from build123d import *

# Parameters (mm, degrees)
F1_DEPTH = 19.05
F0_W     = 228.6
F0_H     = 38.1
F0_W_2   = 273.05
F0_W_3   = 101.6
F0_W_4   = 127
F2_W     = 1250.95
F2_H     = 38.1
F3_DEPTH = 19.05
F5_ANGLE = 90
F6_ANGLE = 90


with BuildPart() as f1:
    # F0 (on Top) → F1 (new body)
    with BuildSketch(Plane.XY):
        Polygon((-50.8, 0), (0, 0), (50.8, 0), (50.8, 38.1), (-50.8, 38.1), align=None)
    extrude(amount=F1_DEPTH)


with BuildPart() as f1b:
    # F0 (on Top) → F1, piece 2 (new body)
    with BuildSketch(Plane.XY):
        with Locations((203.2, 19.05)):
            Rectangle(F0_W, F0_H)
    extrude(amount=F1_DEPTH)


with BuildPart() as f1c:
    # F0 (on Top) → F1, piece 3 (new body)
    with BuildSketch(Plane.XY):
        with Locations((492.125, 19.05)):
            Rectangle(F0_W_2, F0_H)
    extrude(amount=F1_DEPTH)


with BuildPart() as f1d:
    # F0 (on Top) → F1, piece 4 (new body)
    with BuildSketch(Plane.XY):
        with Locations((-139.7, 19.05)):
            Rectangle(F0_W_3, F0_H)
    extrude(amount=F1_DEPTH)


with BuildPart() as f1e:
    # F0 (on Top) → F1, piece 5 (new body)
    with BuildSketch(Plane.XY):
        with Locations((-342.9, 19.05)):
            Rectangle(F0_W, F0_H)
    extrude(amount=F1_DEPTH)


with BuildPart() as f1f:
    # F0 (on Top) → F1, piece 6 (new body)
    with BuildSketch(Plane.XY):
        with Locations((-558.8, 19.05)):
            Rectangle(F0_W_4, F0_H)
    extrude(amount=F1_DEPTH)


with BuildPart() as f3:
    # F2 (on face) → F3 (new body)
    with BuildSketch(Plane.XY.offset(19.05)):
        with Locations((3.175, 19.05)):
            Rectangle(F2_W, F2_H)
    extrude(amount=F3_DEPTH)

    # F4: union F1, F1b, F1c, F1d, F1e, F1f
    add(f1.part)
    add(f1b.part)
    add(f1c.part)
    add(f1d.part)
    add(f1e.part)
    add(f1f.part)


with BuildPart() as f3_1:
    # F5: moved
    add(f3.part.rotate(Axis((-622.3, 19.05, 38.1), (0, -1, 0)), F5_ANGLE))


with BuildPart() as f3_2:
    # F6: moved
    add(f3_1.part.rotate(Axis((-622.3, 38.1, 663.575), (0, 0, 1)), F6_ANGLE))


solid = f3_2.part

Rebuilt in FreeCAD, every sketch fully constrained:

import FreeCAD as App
import Part
import Sketcher

V = App.Vector
Q = App.Units.Quantity

doc = App.newDocument("Part")
params = doc.addObject("Spreadsheet::Sheet", "Params")
for row, (alias, value) in enumerate([
    ("sketch1_width", "4 in"),
    ("sketch1_height", "1.5 in"),
    ("pad1_length", "0.75 in"),
    ("sketch2_width", "9 in"),
    ("sketch2_height", "1.5 in"),
    ("pad2_length", "0.75 in"),
    ("sketch3_height", "1.5 in"),
    ("sketch3_width", "10.75 in"),
    ("pad3_length", "0.75 in"),
    ("sketch4_width", "4 in"),
    ("sketch4_height", "1.5 in"),
    ("pad4_length", "0.75 in"),
    ("sketch5_width", "9 in"),
    ("sketch5_height", "1.5 in"),
    ("pad5_length", "0.75 in"),
    ("sketch6_width", "5 in"),
    ("sketch6_height", "1.5 in"),
    ("pad6_length", "0.75 in"),
    ("sketch7_height", "1.5 in"),
    ("sketch7_width", "49.25 in"),
    ("pad7_length", "0.75 in"),
], start=1):
    params.set(f"A{row}", alias)
    params.set(f"B{row}", "=" + value)
    params.setAlias(f"B{row}", alias)

body = doc.addObject("PartDesign::Body", "Body")

sketch1 = body.newObject("Sketcher::SketchObject", "Sketch")
sketch1.AttachmentSupport = (doc.getObject("XY_Plane"), [""])
sketch1.MapMode = "FlatFace"
sketch1.addGeometry(Part.LineSegment(V(-51, 0, 0), V(51, 0, 0)), False)
sketch1.addGeometry(Part.LineSegment(V(51, 0, 0), V(51, 38, 0)), False)
sketch1.addGeometry(Part.LineSegment(V(51, 38, 0), V(-51, 38, 0)), False)
sketch1.addGeometry(Part.LineSegment(V(-51, 38, 0), V(-51, 0, 0)), False)
sketch1.addConstraint(Sketcher.Constraint("Coincident", 0, 2, 1, 1))
sketch1.addConstraint(Sketcher.Constraint("Coincident", 1, 2, 2, 1))
sketch1.addConstraint(Sketcher.Constraint("Coincident", 2, 2, 3, 1))
sketch1.addConstraint(Sketcher.Constraint("Coincident", 3, 2, 0, 1))
sketch1.addConstraint(Sketcher.Constraint("Horizontal", 0))
sketch1.addConstraint(Sketcher.Constraint("Vertical", 1))
sketch1.addConstraint(Sketcher.Constraint("Horizontal", 2))
sketch1.addConstraint(Sketcher.Constraint("Vertical", 3))
sketch1.addConstraint(Sketcher.Constraint("Symmetric", 0, 2, 3, 2, -1, 1))
sketch1.addConstraint(Sketcher.Constraint("DistanceX", 0, 1, 0, 2, Q("4 in")))
sketch1.addConstraint(Sketcher.Constraint("DistanceY", 1, 1, 1, 2, Q("1.5 in")))
sketch1.setExpression("Constraints[9]", "Params.sketch1_width")
sketch1.setExpression("Constraints[10]", "Params.sketch1_height")
pad1 = body.newObject("PartDesign::Pad", "Pad")
pad1.Profile = sketch1
pad1.setExpression("Length", "Params.pad1_length")
body2 = doc.addObject("PartDesign::Body", "Body001")

sketch2 = body2.newObject("Sketcher::SketchObject", "Sketch001")
sketch2.AttachmentSupport = (doc.getObject("XY_Plane001"), [""])
sketch2.MapMode = "FlatFace"
sketch2.addGeometry(Part.LineSegment(V(89, 38, 0), V(89, 0, 0)), False)
sketch2.addGeometry(Part.LineSegment(V(89, 0, 0), V(318, 0, 0)), False)
sketch2.addGeometry(Part.LineSegment(V(318, 0, 0), V(318, 38, 0)), False)
sketch2.addGeometry(Part.LineSegment(V(318, 38, 0), V(89, 38, 0)), False)
sketch2.addConstraint(Sketcher.Constraint("Coincident", 0, 2, 1, 1))
sketch2.addConstraint(Sketcher.Constraint("Coincident", 1, 2, 2, 1))
sketch2.addConstraint(Sketcher.Constraint("Coincident", 2, 2, 3, 1))
sketch2.addConstraint(Sketcher.Constraint("Coincident", 3, 2, 0, 1))
sketch2.addConstraint(Sketcher.Constraint("Vertical", 0))
sketch2.addConstraint(Sketcher.Constraint("Horizontal", 1))
sketch2.addConstraint(Sketcher.Constraint("Vertical", 2))
sketch2.addConstraint(Sketcher.Constraint("Horizontal", 3))
sketch2.addConstraint(Sketcher.Constraint("PointOnObject", 0, 2, -1))
sketch2.addConstraint(Sketcher.Constraint("DistanceX", 1, 1, 1, 2, Q("9 in")))
sketch2.addConstraint(Sketcher.Constraint("DistanceY", 0, 2, 0, 1, Q("1.5 in")))
sketch2.addConstraint(Sketcher.Constraint("DistanceX", -1, 1, 0, 2, Q("3.5 in")))
sketch2.setExpression("Constraints[9]", "Params.sketch2_width")
sketch2.setExpression("Constraints[10]", "Params.sketch2_height")
pad2 = body2.newObject("PartDesign::Pad", "Pad001")
pad2.Profile = sketch2
pad2.setExpression("Length", "Params.pad2_length")
body3 = doc.addObject("PartDesign::Body", "Body002")

sketch3 = body3.newObject("Sketcher::SketchObject", "Sketch002")
sketch3.AttachmentSupport = (doc.getObject("XY_Plane002"), [""])
sketch3.MapMode = "FlatFace"
sketch3.addGeometry(Part.LineSegment(V(356, 38, 0), V(356, 0, 0)), False)
sketch3.addGeometry(Part.LineSegment(V(356, 0, 0), V(629, 0, 0)), False)
sketch3.addGeometry(Part.LineSegment(V(629, 0, 0), V(629, 38, 0)), False)
sketch3.addGeometry(Part.LineSegment(V(629, 38, 0), V(356, 38, 0)), False)
sketch3.addConstraint(Sketcher.Constraint("Coincident", 0, 2, 1, 1))
sketch3.addConstraint(Sketcher.Constraint("Coincident", 1, 2, 2, 1))
sketch3.addConstraint(Sketcher.Constraint("Coincident", 2, 2, 3, 1))
sketch3.addConstraint(Sketcher.Constraint("Coincident", 3, 2, 0, 1))
sketch3.addConstraint(Sketcher.Constraint("Vertical", 0))
sketch3.addConstraint(Sketcher.Constraint("Horizontal", 1))
sketch3.addConstraint(Sketcher.Constraint("Vertical", 2))
sketch3.addConstraint(Sketcher.Constraint("Horizontal", 3))
sketch3.addConstraint(Sketcher.Constraint("PointOnObject", 0, 2, -1))
sketch3.addConstraint(Sketcher.Constraint("DistanceY", 0, 2, 0, 1, Q("1.5 in")))
sketch3.addConstraint(Sketcher.Constraint("DistanceX", -1, 1, 0, 2, Q("14 in")))
sketch3.addConstraint(Sketcher.Constraint("DistanceX", 1, 1, 1, 2, Q("10.75 in")))
sketch3.setExpression("Constraints[9]", "Params.sketch3_height")
sketch3.setExpression("Constraints[11]", "Params.sketch3_width")
pad3 = body3.newObject("PartDesign::Pad", "Pad002")
pad3.Profile = sketch3
pad3.setExpression("Length", "Params.pad3_length")
body4 = doc.addObject("PartDesign::Body", "Body003")

sketch4 = body4.newObject("Sketcher::SketchObject", "Sketch003")
sketch4.AttachmentSupport = (doc.getObject("XY_Plane003"), [""])
sketch4.MapMode = "FlatFace"
sketch4.addGeometry(Part.LineSegment(V(-190, 38, 0), V(-190, 0, 0)), False)
sketch4.addGeometry(Part.LineSegment(V(-190, 0, 0), V(-89, 0, 0)), False)
sketch4.addGeometry(Part.LineSegment(V(-89, 0, 0), V(-89, 38, 0)), False)
sketch4.addGeometry(Part.LineSegment(V(-89, 38, 0), V(-190, 38, 0)), False)
sketch4.addConstraint(Sketcher.Constraint("Coincident", 0, 2, 1, 1))
sketch4.addConstraint(Sketcher.Constraint("Coincident", 1, 2, 2, 1))
sketch4.addConstraint(Sketcher.Constraint("Coincident", 2, 2, 3, 1))
sketch4.addConstraint(Sketcher.Constraint("Coincident", 3, 2, 0, 1))
sketch4.addConstraint(Sketcher.Constraint("Vertical", 0))
sketch4.addConstraint(Sketcher.Constraint("Horizontal", 1))
sketch4.addConstraint(Sketcher.Constraint("Vertical", 2))
sketch4.addConstraint(Sketcher.Constraint("Horizontal", 3))
sketch4.addConstraint(Sketcher.Constraint("PointOnObject", 0, 2, -1))
sketch4.addConstraint(Sketcher.Constraint("DistanceX", 1, 1, 1, 2, Q("4 in")))
sketch4.addConstraint(Sketcher.Constraint("DistanceY", 0, 2, 0, 1, Q("1.5 in")))
sketch4.addConstraint(Sketcher.Constraint("DistanceX", 0, 2, -1, 1, Q("7.5 in")))
sketch4.setExpression("Constraints[9]", "Params.sketch4_width")
sketch4.setExpression("Constraints[10]", "Params.sketch4_height")
pad4 = body4.newObject("PartDesign::Pad", "Pad003")
pad4.Profile = sketch4
pad4.setExpression("Length", "Params.pad4_length")
body5 = doc.addObject("PartDesign::Body", "Body004")

sketch5 = body5.newObject("Sketcher::SketchObject", "Sketch004")
sketch5.AttachmentSupport = (doc.getObject("XY_Plane004"), [""])
sketch5.MapMode = "FlatFace"
sketch5.addGeometry(Part.LineSegment(V(-457, 38, 0), V(-457, 0, 0)), False)
sketch5.addGeometry(Part.LineSegment(V(-457, 0, 0), V(-229, 0, 0)), False)
sketch5.addGeometry(Part.LineSegment(V(-229, 0, 0), V(-229, 38, 0)), False)
sketch5.addGeometry(Part.LineSegment(V(-229, 38, 0), V(-457, 38, 0)), False)
sketch5.addConstraint(Sketcher.Constraint("Coincident", 0, 2, 1, 1))
sketch5.addConstraint(Sketcher.Constraint("Coincident", 1, 2, 2, 1))
sketch5.addConstraint(Sketcher.Constraint("Coincident", 2, 2, 3, 1))
sketch5.addConstraint(Sketcher.Constraint("Coincident", 3, 2, 0, 1))
sketch5.addConstraint(Sketcher.Constraint("Vertical", 0))
sketch5.addConstraint(Sketcher.Constraint("Horizontal", 1))
sketch5.addConstraint(Sketcher.Constraint("Vertical", 2))
sketch5.addConstraint(Sketcher.Constraint("Horizontal", 3))
sketch5.addConstraint(Sketcher.Constraint("PointOnObject", 0, 2, -1))
sketch5.addConstraint(Sketcher.Constraint("DistanceX", 1, 1, 1, 2, Q("9 in")))
sketch5.addConstraint(Sketcher.Constraint("DistanceY", 0, 2, 0, 1, Q("1.5 in")))
sketch5.addConstraint(Sketcher.Constraint("DistanceX", 0, 2, -1, 1, Q("18 in")))
sketch5.setExpression("Constraints[9]", "Params.sketch5_width")
sketch5.setExpression("Constraints[10]", "Params.sketch5_height")
pad5 = body5.newObject("PartDesign::Pad", "Pad004")
pad5.Profile = sketch5
pad5.setExpression("Length", "Params.pad5_length")
body6 = doc.addObject("PartDesign::Body", "Body005")

sketch6 = body6.newObject("Sketcher::SketchObject", "Sketch005")
sketch6.AttachmentSupport = (doc.getObject("XY_Plane005"), [""])
sketch6.MapMode = "FlatFace"
sketch6.addGeometry(Part.LineSegment(V(-622, 38, 0), V(-622, 0, 0)), False)
sketch6.addGeometry(Part.LineSegment(V(-622, 0, 0), V(-495, 0, 0)), False)
sketch6.addGeometry(Part.LineSegment(V(-495, 0, 0), V(-495, 38, 0)), False)
sketch6.addGeometry(Part.LineSegment(V(-495, 38, 0), V(-622, 38, 0)), False)
sketch6.addConstraint(Sketcher.Constraint("Coincident", 0, 2, 1, 1))
sketch6.addConstraint(Sketcher.Constraint("Coincident", 1, 2, 2, 1))
sketch6.addConstraint(Sketcher.Constraint("Coincident", 2, 2, 3, 1))
sketch6.addConstraint(Sketcher.Constraint("Coincident", 3, 2, 0, 1))
sketch6.addConstraint(Sketcher.Constraint("Vertical", 0))
sketch6.addConstraint(Sketcher.Constraint("Horizontal", 1))
sketch6.addConstraint(Sketcher.Constraint("Vertical", 2))
sketch6.addConstraint(Sketcher.Constraint("Horizontal", 3))
sketch6.addConstraint(Sketcher.Constraint("PointOnObject", 0, 2, -1))
sketch6.addConstraint(Sketcher.Constraint("DistanceX", 1, 1, 1, 2, Q("5 in")))
sketch6.addConstraint(Sketcher.Constraint("DistanceY", 0, 2, 0, 1, Q("1.5 in")))
sketch6.addConstraint(Sketcher.Constraint("DistanceX", 0, 2, -1, 1, Q("24.5 in")))
sketch6.setExpression("Constraints[9]", "Params.sketch6_width")
sketch6.setExpression("Constraints[10]", "Params.sketch6_height")
pad6 = body6.newObject("PartDesign::Pad", "Pad005")
pad6.Profile = sketch6
pad6.setExpression("Length", "Params.pad6_length")
body7 = doc.addObject("PartDesign::Body", "Body006")

sketch7 = body7.newObject("Sketcher::SketchObject", "Sketch006")
sketch7.AttachmentSupport = (doc.getObject("XY_Plane006"), [""])
sketch7.MapMode = "FlatFace"
sketch7.AttachmentOffset = App.Placement(V(0, 0, 0.75 * 25.4), App.Rotation())
sketch7.addGeometry(Part.LineSegment(V(-622, 38, 0), V(-622, 0, 0)), False)
sketch7.addGeometry(Part.LineSegment(V(-622, 0, 0), V(629, 0, 0)), False)
sketch7.addGeometry(Part.LineSegment(V(629, 0, 0), V(629, 38, 0)), False)
sketch7.addGeometry(Part.LineSegment(V(629, 38, 0), V(-622, 38, 0)), False)
sketch7.addConstraint(Sketcher.Constraint("Coincident", 0, 2, 1, 1))
sketch7.addConstraint(Sketcher.Constraint("Coincident", 1, 2, 2, 1))
sketch7.addConstraint(Sketcher.Constraint("Coincident", 2, 2, 3, 1))
sketch7.addConstraint(Sketcher.Constraint("Coincident", 3, 2, 0, 1))
sketch7.addConstraint(Sketcher.Constraint("Vertical", 0))
sketch7.addConstraint(Sketcher.Constraint("Horizontal", 1))
sketch7.addConstraint(Sketcher.Constraint("Vertical", 2))
sketch7.addConstraint(Sketcher.Constraint("Horizontal", 3))
sketch7.addConstraint(Sketcher.Constraint("PointOnObject", 0, 2, -1))
sketch7.addConstraint(Sketcher.Constraint("DistanceY", 0, 2, 0, 1, Q("1.5 in")))
sketch7.addConstraint(Sketcher.Constraint("DistanceX", 1, 1, 1, 2, Q("49.25 in")))
sketch7.addConstraint(Sketcher.Constraint("DistanceX", 0, 2, -1, 1, Q("24.5 in")))
sketch7.setExpression("Constraints[9]", "Params.sketch7_height")
sketch7.setExpression("Constraints[10]", "Params.sketch7_width")
pad7 = body7.newObject("PartDesign::Pad", "Pad006")
pad7.Profile = sketch7
pad7.setExpression("Length", "Params.pad7_length")
doc.recompute()

boolean = body7.newObject("PartDesign::Boolean", "Boolean")
boolean.Type = "Fuse"
boolean.addObjects([body])
doc.recompute()

boolean2 = body7.newObject("PartDesign::Boolean", "Boolean001")
boolean2.Type = "Fuse"
boolean2.addObjects([body2])
doc.recompute()

boolean3 = body7.newObject("PartDesign::Boolean", "Boolean002")
boolean3.Type = "Fuse"
boolean3.addObjects([body3])
doc.recompute()

boolean4 = body7.newObject("PartDesign::Boolean", "Boolean003")
boolean4.Type = "Fuse"
boolean4.addObjects([body4])
doc.recompute()

boolean5 = body7.newObject("PartDesign::Boolean", "Boolean004")
boolean5.Type = "Fuse"
boolean5.addObjects([body5])
doc.recompute()

boolean6 = body7.newObject("PartDesign::Boolean", "Boolean005")
boolean6.Type = "Fuse"
boolean6.addObjects([body6])
body8 = doc.addObject("PartDesign::Body", "Body007")
doc.recompute()

body7.Placement = App.Placement(V(-584.2, 0, 660.4), App.Rotation(V(0, -1, 0), 90))
boolean7 = body8.newObject("PartDesign::Boolean", "Boolean006")
boolean7.Type = "Fuse"
boolean7.addObjects([body7])
body9 = doc.addObject("PartDesign::Body", "Body008")
doc.recompute()

body8.Placement = App.Placement(V(-584.2, 660.4, 0), App.Rotation(V(0, 0, 1), 90))
boolean8 = body9.newObject("PartDesign::Boolean", "Boolean007")
boolean8.Type = "Fuse"
boolean8.addObjects([body8])

doc.recompute()
